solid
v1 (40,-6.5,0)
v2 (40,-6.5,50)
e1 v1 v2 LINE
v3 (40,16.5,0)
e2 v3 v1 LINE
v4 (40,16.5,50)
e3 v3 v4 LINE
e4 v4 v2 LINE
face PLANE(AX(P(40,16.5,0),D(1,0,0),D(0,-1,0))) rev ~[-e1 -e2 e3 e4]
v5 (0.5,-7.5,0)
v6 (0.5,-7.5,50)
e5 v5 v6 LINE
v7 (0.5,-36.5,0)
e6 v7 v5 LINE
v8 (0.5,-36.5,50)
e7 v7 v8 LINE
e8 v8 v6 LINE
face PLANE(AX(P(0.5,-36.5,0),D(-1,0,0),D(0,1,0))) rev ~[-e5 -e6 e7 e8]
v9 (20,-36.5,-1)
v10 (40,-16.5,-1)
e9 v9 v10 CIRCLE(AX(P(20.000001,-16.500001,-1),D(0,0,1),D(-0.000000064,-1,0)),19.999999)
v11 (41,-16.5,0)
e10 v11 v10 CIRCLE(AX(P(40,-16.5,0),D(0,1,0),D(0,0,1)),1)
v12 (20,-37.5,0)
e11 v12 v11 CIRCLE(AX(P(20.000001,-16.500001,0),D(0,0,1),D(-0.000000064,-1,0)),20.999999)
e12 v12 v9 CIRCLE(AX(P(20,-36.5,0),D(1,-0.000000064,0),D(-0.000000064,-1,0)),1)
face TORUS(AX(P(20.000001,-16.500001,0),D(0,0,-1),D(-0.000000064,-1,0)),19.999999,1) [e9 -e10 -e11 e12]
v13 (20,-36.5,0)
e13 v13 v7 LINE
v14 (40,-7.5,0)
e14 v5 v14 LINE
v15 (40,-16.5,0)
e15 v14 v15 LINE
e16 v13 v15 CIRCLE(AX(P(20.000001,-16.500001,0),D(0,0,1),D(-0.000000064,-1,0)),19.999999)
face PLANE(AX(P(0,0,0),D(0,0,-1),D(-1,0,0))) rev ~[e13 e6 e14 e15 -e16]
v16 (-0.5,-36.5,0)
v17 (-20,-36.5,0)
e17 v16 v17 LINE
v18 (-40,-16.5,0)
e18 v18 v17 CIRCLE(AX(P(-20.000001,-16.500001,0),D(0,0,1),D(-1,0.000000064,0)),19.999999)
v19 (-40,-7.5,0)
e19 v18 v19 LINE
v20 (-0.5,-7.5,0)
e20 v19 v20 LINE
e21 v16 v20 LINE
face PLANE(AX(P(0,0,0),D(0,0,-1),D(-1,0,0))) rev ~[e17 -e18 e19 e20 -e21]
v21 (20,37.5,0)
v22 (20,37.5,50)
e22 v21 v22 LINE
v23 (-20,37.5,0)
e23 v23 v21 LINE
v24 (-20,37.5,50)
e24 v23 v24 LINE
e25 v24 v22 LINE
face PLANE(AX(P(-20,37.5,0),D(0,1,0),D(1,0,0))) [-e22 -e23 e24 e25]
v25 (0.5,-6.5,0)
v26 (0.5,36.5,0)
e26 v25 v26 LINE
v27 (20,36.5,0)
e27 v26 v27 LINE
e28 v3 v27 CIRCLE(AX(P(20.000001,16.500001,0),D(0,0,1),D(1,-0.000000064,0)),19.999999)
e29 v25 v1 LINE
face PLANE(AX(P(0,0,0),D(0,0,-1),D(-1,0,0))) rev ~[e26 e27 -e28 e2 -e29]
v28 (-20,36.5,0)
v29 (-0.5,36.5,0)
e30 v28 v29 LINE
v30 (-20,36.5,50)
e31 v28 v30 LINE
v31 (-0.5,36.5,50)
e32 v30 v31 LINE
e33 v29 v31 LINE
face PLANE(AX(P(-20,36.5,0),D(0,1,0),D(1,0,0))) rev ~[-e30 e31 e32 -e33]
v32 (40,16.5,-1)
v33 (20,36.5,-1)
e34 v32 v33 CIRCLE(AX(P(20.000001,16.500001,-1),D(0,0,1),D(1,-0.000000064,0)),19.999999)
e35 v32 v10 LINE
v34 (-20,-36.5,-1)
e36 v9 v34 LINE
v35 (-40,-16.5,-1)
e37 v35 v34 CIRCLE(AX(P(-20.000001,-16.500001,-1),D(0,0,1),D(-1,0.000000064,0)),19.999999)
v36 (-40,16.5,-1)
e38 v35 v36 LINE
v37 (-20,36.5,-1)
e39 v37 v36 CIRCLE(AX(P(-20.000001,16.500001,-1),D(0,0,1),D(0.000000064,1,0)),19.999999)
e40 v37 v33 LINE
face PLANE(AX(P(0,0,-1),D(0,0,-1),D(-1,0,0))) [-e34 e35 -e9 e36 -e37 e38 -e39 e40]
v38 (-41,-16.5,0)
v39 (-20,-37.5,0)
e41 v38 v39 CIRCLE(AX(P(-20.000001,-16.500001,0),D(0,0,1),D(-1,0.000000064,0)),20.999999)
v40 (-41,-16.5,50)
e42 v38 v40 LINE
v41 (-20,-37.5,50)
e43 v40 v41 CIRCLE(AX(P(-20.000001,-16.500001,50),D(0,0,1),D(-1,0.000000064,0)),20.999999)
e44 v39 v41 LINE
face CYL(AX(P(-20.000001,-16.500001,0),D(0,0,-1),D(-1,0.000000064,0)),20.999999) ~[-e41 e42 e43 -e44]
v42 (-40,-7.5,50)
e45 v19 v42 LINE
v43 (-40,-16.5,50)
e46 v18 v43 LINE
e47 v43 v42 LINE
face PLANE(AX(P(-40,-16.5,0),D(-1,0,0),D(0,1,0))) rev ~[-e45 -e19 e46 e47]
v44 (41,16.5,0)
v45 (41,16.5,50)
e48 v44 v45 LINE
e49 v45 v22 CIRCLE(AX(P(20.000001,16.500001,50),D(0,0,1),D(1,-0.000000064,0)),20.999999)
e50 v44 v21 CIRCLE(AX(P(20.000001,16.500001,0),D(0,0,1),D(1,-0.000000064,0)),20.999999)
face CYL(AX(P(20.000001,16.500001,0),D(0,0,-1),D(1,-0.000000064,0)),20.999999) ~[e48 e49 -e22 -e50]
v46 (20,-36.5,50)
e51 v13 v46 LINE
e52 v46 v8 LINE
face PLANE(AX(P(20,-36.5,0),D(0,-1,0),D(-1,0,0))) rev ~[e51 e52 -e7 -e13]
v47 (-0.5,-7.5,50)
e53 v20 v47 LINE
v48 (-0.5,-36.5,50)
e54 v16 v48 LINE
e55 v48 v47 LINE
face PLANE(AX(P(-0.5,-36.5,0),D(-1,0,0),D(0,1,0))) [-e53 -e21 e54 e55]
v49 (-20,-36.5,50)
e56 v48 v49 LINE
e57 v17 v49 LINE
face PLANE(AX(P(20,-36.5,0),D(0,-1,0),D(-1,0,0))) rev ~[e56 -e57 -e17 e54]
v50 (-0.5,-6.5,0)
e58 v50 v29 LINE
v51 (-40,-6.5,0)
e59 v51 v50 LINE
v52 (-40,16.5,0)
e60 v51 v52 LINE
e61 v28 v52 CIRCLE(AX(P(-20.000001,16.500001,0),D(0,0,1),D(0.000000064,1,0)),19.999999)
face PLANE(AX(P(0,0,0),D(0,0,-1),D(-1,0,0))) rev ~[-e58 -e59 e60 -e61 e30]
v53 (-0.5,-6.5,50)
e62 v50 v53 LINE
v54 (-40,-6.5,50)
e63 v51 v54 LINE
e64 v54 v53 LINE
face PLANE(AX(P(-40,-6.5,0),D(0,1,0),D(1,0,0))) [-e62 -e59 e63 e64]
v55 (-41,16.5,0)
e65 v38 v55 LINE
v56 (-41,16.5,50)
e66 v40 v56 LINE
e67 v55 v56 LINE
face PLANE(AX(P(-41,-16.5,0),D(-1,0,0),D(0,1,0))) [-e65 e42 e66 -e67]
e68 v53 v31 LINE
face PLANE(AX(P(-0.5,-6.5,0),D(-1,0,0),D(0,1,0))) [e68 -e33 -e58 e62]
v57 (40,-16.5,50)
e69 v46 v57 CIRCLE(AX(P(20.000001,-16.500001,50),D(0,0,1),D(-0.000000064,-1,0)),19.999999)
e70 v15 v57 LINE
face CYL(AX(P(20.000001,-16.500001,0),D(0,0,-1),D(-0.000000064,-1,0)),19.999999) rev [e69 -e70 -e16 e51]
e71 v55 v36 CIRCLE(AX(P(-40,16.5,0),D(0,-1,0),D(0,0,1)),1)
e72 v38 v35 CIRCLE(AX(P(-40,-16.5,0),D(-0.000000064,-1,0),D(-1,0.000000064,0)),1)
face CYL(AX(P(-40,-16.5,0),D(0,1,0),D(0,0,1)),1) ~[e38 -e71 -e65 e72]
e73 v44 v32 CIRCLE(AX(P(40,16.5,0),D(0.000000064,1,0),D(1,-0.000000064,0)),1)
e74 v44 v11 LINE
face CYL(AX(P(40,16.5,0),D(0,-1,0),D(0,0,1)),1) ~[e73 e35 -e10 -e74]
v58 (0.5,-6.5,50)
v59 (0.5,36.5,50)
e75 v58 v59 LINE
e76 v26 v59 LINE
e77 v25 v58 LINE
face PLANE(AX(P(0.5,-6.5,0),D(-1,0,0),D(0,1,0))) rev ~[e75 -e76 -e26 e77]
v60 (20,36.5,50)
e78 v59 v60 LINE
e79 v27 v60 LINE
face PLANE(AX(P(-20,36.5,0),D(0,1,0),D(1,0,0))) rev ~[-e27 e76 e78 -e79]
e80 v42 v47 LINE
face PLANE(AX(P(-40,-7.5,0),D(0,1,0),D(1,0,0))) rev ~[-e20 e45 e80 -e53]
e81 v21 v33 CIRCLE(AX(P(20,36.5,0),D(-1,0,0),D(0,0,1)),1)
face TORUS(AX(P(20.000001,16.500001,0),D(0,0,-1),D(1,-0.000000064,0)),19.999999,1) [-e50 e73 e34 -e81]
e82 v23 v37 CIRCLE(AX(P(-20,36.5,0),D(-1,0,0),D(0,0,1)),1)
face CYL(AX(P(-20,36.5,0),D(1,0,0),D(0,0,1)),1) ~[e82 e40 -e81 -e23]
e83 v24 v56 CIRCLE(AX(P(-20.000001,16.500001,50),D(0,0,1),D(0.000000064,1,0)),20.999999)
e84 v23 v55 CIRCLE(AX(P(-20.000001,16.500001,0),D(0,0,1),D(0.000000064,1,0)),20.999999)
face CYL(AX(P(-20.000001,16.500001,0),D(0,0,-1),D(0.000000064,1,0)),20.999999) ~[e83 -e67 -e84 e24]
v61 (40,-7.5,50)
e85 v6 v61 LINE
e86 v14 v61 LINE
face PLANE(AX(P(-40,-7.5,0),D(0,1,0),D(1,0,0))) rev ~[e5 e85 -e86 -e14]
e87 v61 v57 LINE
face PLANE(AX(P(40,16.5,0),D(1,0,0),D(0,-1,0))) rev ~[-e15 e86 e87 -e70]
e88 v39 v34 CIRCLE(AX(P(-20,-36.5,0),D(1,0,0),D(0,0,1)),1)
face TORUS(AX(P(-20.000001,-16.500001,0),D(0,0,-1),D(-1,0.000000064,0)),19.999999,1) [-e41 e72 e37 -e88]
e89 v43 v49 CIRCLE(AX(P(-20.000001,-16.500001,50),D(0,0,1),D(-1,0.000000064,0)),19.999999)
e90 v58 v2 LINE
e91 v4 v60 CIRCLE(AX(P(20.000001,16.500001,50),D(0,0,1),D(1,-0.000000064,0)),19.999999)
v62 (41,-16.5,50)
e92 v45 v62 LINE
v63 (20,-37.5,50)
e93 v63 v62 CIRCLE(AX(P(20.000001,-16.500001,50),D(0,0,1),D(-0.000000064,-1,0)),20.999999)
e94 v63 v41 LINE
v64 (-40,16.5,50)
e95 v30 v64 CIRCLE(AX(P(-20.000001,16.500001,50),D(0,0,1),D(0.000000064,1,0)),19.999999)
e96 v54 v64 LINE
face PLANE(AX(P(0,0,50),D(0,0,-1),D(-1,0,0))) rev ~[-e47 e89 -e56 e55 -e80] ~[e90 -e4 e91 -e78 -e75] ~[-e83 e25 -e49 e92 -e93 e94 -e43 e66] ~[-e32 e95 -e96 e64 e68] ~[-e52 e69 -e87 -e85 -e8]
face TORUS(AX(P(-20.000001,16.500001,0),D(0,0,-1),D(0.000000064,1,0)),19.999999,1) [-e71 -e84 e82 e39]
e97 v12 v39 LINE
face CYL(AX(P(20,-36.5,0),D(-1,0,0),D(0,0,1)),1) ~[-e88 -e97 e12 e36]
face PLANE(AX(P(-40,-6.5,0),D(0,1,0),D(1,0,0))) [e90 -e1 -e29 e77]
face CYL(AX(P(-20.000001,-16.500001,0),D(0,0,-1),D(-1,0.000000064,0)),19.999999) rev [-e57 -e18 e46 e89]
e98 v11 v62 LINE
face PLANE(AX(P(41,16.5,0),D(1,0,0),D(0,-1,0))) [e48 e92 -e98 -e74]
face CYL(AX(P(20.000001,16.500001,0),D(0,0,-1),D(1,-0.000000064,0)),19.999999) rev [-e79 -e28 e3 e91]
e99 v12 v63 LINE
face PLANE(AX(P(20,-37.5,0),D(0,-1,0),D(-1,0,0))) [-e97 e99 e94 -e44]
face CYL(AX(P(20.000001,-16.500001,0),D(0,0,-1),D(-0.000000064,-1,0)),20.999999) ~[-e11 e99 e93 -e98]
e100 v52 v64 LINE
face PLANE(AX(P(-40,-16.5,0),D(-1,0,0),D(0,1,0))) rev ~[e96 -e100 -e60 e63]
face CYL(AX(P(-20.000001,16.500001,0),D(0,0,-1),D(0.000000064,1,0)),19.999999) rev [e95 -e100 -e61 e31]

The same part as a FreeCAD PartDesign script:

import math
import FreeCAD as App
import Part
import Sketcher
from FreeCAD import Vector
Q = App.Units.Quantity


def faces_at(feature, points):
    """Names of the faces that lie closest to the given points."""
    faces = feature.Shape.Faces
    near = lambda p: min(range(len(faces)), key=lambda i: faces[i].distToShape(Part.Vertex(*p))[0])
    return sorted({f"Face{near(p) + 1}" for p in points})

doc = App.newDocument("Part")
body = doc.addObject("PartDesign::Body", "Body")

# Sketch on XY plane
sketch1 = doc.addObject("Sketcher::SketchObject", "Sketch")
body.addObject(sketch1)
sketch1.AttachmentSupport = (doc.XY_Plane, [""])
sketch1.MapMode = "FlatFace"
sketch1.addGeometry([
    Part.LineSegment(Vector(20, 36, 0), Vector(-20, 36, 0)),  # 0
    Part.ArcOfCircle(Part.Circle(Vector(-20, 17, 0), Vector(0, 0, 1), 20), math.radians(90), math.radians(180)),  # 1
    Part.LineSegment(Vector(-40, 16, 0), Vector(-40, -16, 0)),  # 2
    Part.ArcOfCircle(Part.Circle(Vector(-20, -17, 0), Vector(0, 0, 1), 20), math.radians(180), math.radians(270)),  # 3
    Part.LineSegment(Vector(-20, -36, 0), Vector(20, -36, 0)),  # 4
    Part.ArcOfCircle(Part.Circle(Vector(20, -17, 0), Vector(0, 0, 1), 20), math.radians(-90), math.radians(0)),  # 5
    Part.LineSegment(Vector(40, -16, 0), Vector(40, 16, 0)),  # 6
    Part.ArcOfCircle(Part.Circle(Vector(20, 17, 0), Vector(0, 0, 1), 20), math.radians(0), math.radians(90)),  # 7
], False)
sketch1.addConstraint([
    Sketcher.Constraint("Tangent", 0, 2, 1, 1),
    Sketcher.Constraint("Tangent", 1, 2, 2, 1),
    Sketcher.Constraint("Tangent", 2, 2, 3, 1),
    Sketcher.Constraint("Tangent", 3, 2, 4, 1),
    Sketcher.Constraint("Tangent", 4, 2, 5, 1),
    Sketcher.Constraint("Tangent", 5, 2, 6, 1),
    Sketcher.Constraint("Tangent", 6, 2, 7, 1),
    Sketcher.Constraint("Tangent", 7, 2, 0, 1),
    Sketcher.Constraint("Horizontal", 0),
    Sketcher.Constraint("Vertical", 2),
    Sketcher.Constraint("Horizontal", 4),
    Sketcher.Constraint("Vertical", 6),
    Sketcher.Constraint("Equal", 1, 3),
    Sketcher.Constraint("Equal", 3, 5),
    Sketcher.Constraint("Equal", 5, 7),
    Sketcher.Constraint("Symmetric", 1, 3, 5, 3, -1, 1),
    Sketcher.Constraint("Radius", 1, Q("19.999999 mm")),
    Sketcher.Constraint("DistanceX", 0, 2, 0, 1, Q("40 mm")),
    Sketcher.Constraint("DistanceY", 2, 2, 2, 1, Q("33 mm")),
])
pad1 = doc.addObject("PartDesign::Pad", "Pad")
body.addObject(pad1)
pad1.Profile = sketch1
pad1.Length = 50
doc.recompute()

thickness = doc.addObject("PartDesign::Thickness", "Thickness")
body.addObject(thickness)
thickness.Base = (pad1, faces_at(pad1, [(0, 0, 50)]))
thickness.Value = 1
thickness.Reversed = False
thickness.Join = "Arc"

# Sketch on XY plane
sketch2 = doc.addObject("Sketcher::SketchObject", "Sketch001")
body.addObject(sketch2)
sketch2.AttachmentSupport = (doc.XY_Plane, [""])
sketch2.MapMode = "FlatFace"
sketch2.addGeometry([
    Part.LineSegment(Vector(-40, -6.5, 0), Vector(-40, -7.5, 0)),
    Part.LineSegment(Vector(-40, -7.5, 0), Vector(40, -7.5, 0)),
    Part.LineSegment(Vector(40, -7.5, 0), Vector(40, -6.5, 0)),
    Part.LineSegment(Vector(40, -6.5, 0), Vector(-40, -6.5, 0)),
], False)
sketch2.addConstraint([
    Sketcher.Constraint("Coincident", 0, 2, 1, 1),
    Sketcher.Constraint("Coincident", 1, 2, 2, 1),
    Sketcher.Constraint("Coincident", 2, 2, 3, 1),
    Sketcher.Constraint("Coincident", 3, 2, 0, 1),
    Sketcher.Constraint("Vertical", 0),
    Sketcher.Constraint("Horizontal", 1),
    Sketcher.Constraint("Vertical", 2),
    Sketcher.Constraint("Horizontal", 3),
    Sketcher.Constraint("DistanceX", 1, 1, 1, 2, Q("80 mm")),
    Sketcher.Constraint("DistanceY", 0, 2, 0, 1, Q("1 mm")),
    Sketcher.Constraint("DistanceX", 0, 2, -1, 1, Q("40 mm")),
    Sketcher.Constraint("DistanceY", 0, 2, -1, 1, Q("7.5 mm")),
])
pad2 = doc.addObject("PartDesign::Pad", "Pad001")
body.addObject(pad2)
pad2.Profile = sketch2
pad2.Length = 50

# Sketch on XY plane
sketch3 = doc.addObject("Sketcher::SketchObject", "Sketch002")
body.addObject(sketch3)
sketch3.AttachmentSupport = (doc.XY_Plane, [""])
sketch3.MapMode = "FlatFace"
sketch3.addGeometry([
    Part.LineSegment(Vector(-0.5, -7.5, 0), Vector(-0.5, -36.5, 0)),
    Part.LineSegment(Vector(-0.5, -36.5, 0), Vector(0.5, -36.5, 0)),
    Part.LineSegment(Vector(0.5, -36.5, 0), Vector(0.5, -7.5, 0)),
    Part.LineSegment(Vector(0.5, -7.5, 0), Vector(-0.5, -7.5, 0)),
], False)
sketch3.addConstraint([
    Sketcher.Constraint("Coincident", 0, 2, 1, 1),
    Sketcher.Constraint("Coincident", 1, 2, 2, 1),
    Sketcher.Constraint("Coincident", 2, 2, 3, 1),
    Sketcher.Constraint("Coincident", 3, 2, 0, 1),
    Sketcher.Constraint("Vertical", 0),
    Sketcher.Constraint("Horizontal", 1),
    Sketcher.Constraint("Vertical", 2),
    Sketcher.Constraint("Horizontal", 3),
    Sketcher.Constraint("DistanceX", 1, 1, 1, 2, Q("1 mm")),
    Sketcher.Constraint("DistanceY", 0, 2, 0, 1, Q("29 mm")),
    Sketcher.Constraint("DistanceX", 0, 2, -1, 1, Q("0.5 mm")),
    Sketcher.Constraint("DistanceY", 0, 2, -1, 1, Q("36.5 mm")),
])
pad3 = doc.addObject("PartDesign::Pad", "Pad002")
body.addObject(pad3)
pad3.Profile = sketch3
pad3.Length = 50

# Sketch on XY plane
sketch4 = doc.addObject("Sketcher::SketchObject", "Sketch003")
body.addObject(sketch4)
sketch4.AttachmentSupport = (doc.XY_Plane, [""])
sketch4.MapMode = "FlatFace"
sketch4.addGeometry([
    Part.LineSegment(Vector(-0.5, 36.5, 0), Vector(-0.5, -6.5, 0)),
    Part.LineSegment(Vector(-0.5, -6.5, 0), Vector(0.5, -6.5, 0)),
    Part.LineSegment(Vector(0.5, -6.5, 0), Vector(0.5, 36.5, 0)),
    Part.LineSegment(Vector(0.5, 36.5, 0), Vector(-0.5, 36.5, 0)),
], False)
sketch4.addConstraint([
    Sketcher.Constraint("Coincident", 0, 2, 1, 1),
    Sketcher.Constraint("Coincident", 1, 2, 2, 1),
    Sketcher.Constraint("Coincident", 2, 2, 3, 1),
    Sketcher.Constraint("Coincident", 3, 2, 0, 1),
    Sketcher.Constraint("Vertical", 0),
    Sketcher.Constraint("Horizontal", 1),
    Sketcher.Constraint("Vertical", 2),
    Sketcher.Constraint("Horizontal", 3),
    Sketcher.Constraint("DistanceX", 1, 1, 1, 2, Q("1 mm")),
    Sketcher.Constraint("DistanceY", 0, 2, 0, 1, Q("43 mm")),
    Sketcher.Constraint("DistanceX", 0, 2, -1, 1, Q("0.5 mm")),
    Sketcher.Constraint("DistanceY", 0, 2, -1, 1, Q("6.5 mm")),
])
pad4 = doc.addObject("PartDesign::Pad", "Pad003")
body.addObject(pad4)
pad4.Profile = sketch4
pad4.Length = 50

doc.recompute()
